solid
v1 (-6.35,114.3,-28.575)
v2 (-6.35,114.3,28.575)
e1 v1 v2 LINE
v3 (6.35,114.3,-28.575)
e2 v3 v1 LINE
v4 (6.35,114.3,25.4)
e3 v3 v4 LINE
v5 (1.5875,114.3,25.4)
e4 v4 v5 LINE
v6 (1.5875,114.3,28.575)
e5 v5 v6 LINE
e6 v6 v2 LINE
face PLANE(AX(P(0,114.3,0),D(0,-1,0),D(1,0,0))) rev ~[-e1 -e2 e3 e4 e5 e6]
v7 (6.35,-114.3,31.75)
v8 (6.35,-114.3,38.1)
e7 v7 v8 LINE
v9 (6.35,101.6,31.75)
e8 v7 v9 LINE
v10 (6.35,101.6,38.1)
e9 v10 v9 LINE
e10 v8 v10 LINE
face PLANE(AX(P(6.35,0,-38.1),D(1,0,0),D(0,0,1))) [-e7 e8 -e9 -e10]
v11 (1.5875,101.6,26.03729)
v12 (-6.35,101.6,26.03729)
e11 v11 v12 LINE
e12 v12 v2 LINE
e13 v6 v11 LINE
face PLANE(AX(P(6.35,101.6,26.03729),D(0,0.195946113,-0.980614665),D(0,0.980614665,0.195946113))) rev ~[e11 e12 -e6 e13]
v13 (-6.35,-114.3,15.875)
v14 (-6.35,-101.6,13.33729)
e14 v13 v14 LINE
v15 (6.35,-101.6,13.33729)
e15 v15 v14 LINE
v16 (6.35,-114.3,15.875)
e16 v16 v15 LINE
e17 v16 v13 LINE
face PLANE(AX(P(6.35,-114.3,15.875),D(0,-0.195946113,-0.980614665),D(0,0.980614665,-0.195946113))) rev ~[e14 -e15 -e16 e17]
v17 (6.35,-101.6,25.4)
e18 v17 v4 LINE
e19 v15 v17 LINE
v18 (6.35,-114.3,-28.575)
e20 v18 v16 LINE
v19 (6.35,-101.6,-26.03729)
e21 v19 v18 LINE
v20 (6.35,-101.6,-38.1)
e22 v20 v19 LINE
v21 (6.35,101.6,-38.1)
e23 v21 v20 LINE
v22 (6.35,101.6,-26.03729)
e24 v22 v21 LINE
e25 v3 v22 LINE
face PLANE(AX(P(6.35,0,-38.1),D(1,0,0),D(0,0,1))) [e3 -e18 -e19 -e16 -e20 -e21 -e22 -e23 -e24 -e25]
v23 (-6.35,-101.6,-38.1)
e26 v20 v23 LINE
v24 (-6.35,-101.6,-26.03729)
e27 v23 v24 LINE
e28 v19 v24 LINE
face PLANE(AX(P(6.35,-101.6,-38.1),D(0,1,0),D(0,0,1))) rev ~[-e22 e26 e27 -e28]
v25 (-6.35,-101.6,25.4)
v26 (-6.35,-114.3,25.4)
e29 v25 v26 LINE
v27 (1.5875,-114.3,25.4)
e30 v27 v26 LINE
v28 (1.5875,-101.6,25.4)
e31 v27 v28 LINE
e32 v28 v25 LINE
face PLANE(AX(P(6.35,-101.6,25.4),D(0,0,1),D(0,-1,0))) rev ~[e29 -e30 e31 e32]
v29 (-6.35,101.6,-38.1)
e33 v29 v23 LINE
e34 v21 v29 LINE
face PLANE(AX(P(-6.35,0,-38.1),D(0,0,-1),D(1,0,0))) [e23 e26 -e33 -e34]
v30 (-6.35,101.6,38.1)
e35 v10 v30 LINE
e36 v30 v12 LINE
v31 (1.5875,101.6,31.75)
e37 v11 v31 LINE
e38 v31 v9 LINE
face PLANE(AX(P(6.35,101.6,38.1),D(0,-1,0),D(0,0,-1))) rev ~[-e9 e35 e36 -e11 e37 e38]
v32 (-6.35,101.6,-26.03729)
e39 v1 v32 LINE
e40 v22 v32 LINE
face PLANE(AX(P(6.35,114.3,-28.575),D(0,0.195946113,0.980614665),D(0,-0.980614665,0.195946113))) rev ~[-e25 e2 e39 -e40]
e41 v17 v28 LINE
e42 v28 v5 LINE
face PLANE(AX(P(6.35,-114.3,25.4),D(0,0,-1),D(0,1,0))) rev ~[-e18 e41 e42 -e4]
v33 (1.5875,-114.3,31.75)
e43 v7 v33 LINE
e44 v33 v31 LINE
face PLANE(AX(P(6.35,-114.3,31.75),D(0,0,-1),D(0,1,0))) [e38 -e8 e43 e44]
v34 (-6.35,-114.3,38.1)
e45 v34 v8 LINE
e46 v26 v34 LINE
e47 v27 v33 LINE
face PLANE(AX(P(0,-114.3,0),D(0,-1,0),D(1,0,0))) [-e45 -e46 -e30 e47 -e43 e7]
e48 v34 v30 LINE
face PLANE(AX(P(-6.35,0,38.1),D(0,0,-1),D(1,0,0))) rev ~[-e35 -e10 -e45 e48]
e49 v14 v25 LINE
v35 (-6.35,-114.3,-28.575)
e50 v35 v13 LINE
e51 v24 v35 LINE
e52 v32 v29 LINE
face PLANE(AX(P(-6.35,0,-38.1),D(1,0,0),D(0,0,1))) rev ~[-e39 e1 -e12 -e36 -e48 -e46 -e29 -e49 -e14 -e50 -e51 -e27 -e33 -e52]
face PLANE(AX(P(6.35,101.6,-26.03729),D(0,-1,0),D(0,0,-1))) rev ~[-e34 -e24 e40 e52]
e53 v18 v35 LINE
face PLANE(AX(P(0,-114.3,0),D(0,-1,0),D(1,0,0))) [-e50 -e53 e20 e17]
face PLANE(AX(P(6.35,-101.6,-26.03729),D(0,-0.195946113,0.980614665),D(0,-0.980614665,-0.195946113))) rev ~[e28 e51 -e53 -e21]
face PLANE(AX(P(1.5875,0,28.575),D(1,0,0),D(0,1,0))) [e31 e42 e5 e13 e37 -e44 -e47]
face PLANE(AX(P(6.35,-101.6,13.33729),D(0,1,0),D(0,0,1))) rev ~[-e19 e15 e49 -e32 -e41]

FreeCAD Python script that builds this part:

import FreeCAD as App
import Part
import Sketcher
from FreeCAD import Vector
Q = App.Units.Quantity


def add_polygon(sketch, points):
    """Adds a closed chain of lines whose ends are joined by coincident constraints."""
    first, n = sketch.GeometryCount, len(points)
    for a, b in zip(points, points[1:] + points[:1]):
        sketch.addGeometry(Part.LineSegment(App.Vector(*a, 0), App.Vector(*b, 0)), False)
    for i in range(n):
        sketch.addConstraint(Sketcher.Constraint("Coincident", first + i, 2, first + (i + 1) % n, 1))

doc = App.newDocument("Part")
body = doc.addObject("PartDesign::Body", "Body")

sketch1 = body.newObject("Sketcher::SketchObject", "Sketch")
sketch1.AttachmentSupport = (doc.getObject("XZ_Plane"), [""])
sketch1.MapMode = "FlatFace"
add_polygon(sketch1, [(-6, 38), (-6, -38), (6, -38), (6, 38)])
sketch1.addConstraint([
    Sketcher.Constraint("Vertical", 0),
    Sketcher.Constraint("Horizontal", 1),
    Sketcher.Constraint("Vertical", 2),
    Sketcher.Constraint("Horizontal", 3),
    Sketcher.Constraint("Symmetric", 0, 2, 2, 2, -1, 1),
    Sketcher.Constraint("DistanceY", 0, 2, 0, 1, Q("3 in")),
    Sketcher.Constraint("DistanceX", 1, 1, 1, 2, Q("0.5 in")),
])
pad1 = body.newObject("PartDesign::Pad", "Pad")
pad1.Profile = sketch1
pad1.Length = Q("9 in")
pad1.Midplane = True

sketch2 = body.newObject("Sketcher::SketchObject", "Sketch001")
sketch2.AttachmentSupport = (doc.getObject("YZ_Plane"), [""])
sketch2.MapMode = "FlatFace"
sketch2.AttachmentOffset = App.Placement(Vector(0, 0, 0.25 * 25.4), App.Rotation())
add_polygon(sketch2, [(-102, 25), (-114, 25), (-114, 16), (-102, 13)])
add_polygon(sketch2, [(-114, -29), (-114, -38), (-102, -38), (-102, -26)])
add_polygon(sketch2, [(114, 29), (114, 38), (102, 38), (102, 26)])
add_polygon(sketch2, [(102, -38), (114, -38), (114, -29), (102, -26)])
sketch2.addConstraint([
    Sketcher.Constraint("Horizontal", 0),
    Sketcher.Constraint("Vertical", 1),
    Sketcher.Constraint("Vertical", 3),
    Sketcher.Constraint("Vertical", 4),
    Sketcher.Constraint("Horizontal", 5),
    Sketcher.Constraint("Vertical", 6),
    Sketcher.Constraint("Vertical", 8),
    Sketcher.Constraint("Horizontal", 9),
    Sketcher.Constraint("Vertical", 10),
    Sketcher.Constraint("Horizontal", 12),
    Sketcher.Constraint("Vertical", 13),
    Sketcher.Constraint("Vertical", 15),
    Sketcher.Constraint("Symmetric", 4, 2, 8, 2, -1, 1),
    Sketcher.Constraint("Symmetric", 6, 2, 10, 2, -1, 1),
    Sketcher.Constraint("Symmetric", 4, 2, 12, 2, -2),
    Sketcher.Constraint("Symmetric", 6, 2, 14, 2, -2),
    Sketcher.Constraint("Parallel", 7, 11),
    Sketcher.Constraint("Parallel", 2, 14),
    Sketcher.Constraint("Horizontal", 7, 2, 13, 2),
    Sketcher.Constraint("Vertical", 1, 2, 4, 2),
    Sketcher.Constraint("Vertical", 3, 2, 5, 2),
    Sketcher.Constraint("Equal", 1, 4),
    Sketcher.Constraint("DistanceX", 0, 2, 0, 1, Q("0.5 in")),
    Sketcher.Constraint("DistanceY", -1, 1, 0, 2, Q("1 in")),
    Sketcher.Constraint("DistanceX", 2, 2, -1, 1, Q("4 in")),
    Sketcher.Constraint("DistanceY", 5, 2, 8, 2, Q("3 in")),
    Sketcher.Constraint("Angle", 2, Q("-11.299998 deg")),
    Sketcher.Constraint("DistanceY", 1, 2, 1, 1, Q("0.375 in")),
])
pocket1 = body.newObject("PartDesign::Pocket", "Pocket")
pocket1.Profile = sketch2
pocket1.Type = "ThroughAll"

sketch3 = body.newObject("Sketcher::SketchObject", "Sketch002")
sketch3.AttachmentSupport = (doc.getObject("YZ_Plane"), [""])
sketch3.MapMode = "FlatFace"
sketch3.AttachmentOffset = App.Placement(Vector(0, 0, 0.25 * 25.4), App.Rotation())
add_polygon(sketch3, [(-114, 32), (-114, 25), (114, 25), (114, 32)])
sketch3.addConstraint([
    Sketcher.Constraint("Vertical", 0),
    Sketcher.Constraint("Horizontal", 1),
    Sketcher.Constraint("Vertical", 2),
    Sketcher.Constraint("Horizontal", 3),
    Sketcher.Constraint("DistanceX", 1, 1, 1, 2, Q("9 in")),
    Sketcher.Constraint("DistanceY", -1, 1, 0, 2, Q("1 in")),
    Sketcher.Constraint("DistanceY", 0, 2, 0, 1, Q("0.25 in")),
    Sketcher.Constraint("DistanceX", 0, 2, -1, 1, Q("4.5 in")),
])
pocket2 = body.newObject("PartDesign::Pocket", "Pocket001")
pocket2.Profile = sketch3
pocket2.Length = Q("0.1875 in")

doc.recompute()
